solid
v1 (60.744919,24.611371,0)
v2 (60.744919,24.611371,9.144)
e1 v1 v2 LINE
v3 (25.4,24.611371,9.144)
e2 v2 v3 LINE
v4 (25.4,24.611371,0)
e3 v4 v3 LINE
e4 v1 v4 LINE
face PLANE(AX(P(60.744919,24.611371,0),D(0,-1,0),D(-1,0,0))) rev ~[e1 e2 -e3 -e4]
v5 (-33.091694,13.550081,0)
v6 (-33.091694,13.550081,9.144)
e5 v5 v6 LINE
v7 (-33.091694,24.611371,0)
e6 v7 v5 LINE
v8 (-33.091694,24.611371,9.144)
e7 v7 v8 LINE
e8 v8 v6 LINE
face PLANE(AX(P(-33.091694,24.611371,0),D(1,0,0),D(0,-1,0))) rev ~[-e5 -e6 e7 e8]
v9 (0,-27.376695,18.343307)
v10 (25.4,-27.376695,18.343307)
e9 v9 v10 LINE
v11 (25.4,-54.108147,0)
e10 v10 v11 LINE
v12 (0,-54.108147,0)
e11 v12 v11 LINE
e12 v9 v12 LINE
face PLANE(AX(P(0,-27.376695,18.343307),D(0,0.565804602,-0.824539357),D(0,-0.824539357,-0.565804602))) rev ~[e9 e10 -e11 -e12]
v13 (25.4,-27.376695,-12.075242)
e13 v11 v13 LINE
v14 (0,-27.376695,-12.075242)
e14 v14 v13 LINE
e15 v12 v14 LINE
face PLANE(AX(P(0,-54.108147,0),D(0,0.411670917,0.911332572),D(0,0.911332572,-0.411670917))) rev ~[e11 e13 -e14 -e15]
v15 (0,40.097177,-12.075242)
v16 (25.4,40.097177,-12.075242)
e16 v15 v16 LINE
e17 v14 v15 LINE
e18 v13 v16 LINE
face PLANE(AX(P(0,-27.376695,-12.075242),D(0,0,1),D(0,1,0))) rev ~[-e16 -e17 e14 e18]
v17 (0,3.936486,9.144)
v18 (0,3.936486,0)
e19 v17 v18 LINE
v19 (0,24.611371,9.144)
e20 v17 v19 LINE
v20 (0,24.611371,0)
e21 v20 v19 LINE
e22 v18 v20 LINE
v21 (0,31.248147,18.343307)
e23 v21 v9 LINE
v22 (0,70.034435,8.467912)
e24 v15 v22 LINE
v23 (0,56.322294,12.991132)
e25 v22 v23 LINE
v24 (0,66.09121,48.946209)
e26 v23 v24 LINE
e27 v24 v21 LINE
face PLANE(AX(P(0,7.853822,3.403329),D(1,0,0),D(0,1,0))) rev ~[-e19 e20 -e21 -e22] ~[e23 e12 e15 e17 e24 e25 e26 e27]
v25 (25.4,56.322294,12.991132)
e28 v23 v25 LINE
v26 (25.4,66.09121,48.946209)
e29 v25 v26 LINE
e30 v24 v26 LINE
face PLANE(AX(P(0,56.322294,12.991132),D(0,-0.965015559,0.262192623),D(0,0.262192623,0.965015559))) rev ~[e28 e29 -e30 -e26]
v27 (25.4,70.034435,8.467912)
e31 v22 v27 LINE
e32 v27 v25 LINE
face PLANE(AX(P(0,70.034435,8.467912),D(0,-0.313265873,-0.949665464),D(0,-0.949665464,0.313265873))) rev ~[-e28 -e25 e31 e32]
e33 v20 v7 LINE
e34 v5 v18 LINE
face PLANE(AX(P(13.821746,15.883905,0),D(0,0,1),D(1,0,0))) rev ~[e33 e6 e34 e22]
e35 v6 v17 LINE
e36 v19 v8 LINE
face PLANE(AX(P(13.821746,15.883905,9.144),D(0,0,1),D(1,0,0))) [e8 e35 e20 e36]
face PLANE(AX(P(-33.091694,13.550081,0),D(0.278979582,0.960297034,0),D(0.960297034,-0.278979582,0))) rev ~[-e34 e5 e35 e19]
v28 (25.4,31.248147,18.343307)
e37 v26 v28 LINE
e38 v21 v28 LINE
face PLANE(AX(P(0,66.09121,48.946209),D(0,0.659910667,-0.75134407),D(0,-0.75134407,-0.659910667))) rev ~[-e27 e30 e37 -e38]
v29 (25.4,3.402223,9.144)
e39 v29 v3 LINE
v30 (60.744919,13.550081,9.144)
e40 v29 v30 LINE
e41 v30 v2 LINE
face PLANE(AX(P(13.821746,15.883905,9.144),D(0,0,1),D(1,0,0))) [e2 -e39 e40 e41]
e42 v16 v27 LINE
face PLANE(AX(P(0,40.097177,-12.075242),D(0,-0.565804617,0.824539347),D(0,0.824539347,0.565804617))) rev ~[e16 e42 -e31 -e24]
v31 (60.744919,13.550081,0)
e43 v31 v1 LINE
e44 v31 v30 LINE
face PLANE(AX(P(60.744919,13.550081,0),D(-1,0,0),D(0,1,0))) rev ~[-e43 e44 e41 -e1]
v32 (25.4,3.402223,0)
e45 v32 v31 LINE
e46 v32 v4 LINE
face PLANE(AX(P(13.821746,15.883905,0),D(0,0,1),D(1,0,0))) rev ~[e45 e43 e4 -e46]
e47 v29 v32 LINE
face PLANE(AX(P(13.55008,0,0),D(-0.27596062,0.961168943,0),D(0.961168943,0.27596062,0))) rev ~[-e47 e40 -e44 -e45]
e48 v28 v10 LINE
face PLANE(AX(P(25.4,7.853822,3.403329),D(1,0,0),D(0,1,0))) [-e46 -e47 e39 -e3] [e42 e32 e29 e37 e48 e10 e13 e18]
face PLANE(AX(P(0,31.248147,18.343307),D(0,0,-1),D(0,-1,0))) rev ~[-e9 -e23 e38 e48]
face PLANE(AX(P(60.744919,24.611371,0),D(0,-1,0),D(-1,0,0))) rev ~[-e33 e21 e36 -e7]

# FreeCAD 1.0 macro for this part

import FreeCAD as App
import Part
import Sketcher

V = App.Vector
Q = App.Units.Quantity


def add_polygon(sketch, points):
    """Adds a closed chain of lines whose ends are joined by coincident constraints."""
    first, n = sketch.GeometryCount, len(points)
    for a, b in zip(points, points[1:] + points[:1]):
        sketch.addGeometry(Part.LineSegment(App.Vector(*a, 0), App.Vector(*b, 0)), False)
    for i in range(n):
        sketch.addConstraint(Sketcher.Constraint("Coincident", first + i, 2, first + (i + 1) % n, 1))

doc = App.newDocument("Part")
body = doc.addObject("PartDesign::Body", "Body")

# Sketch on XY plane
sketch1 = body.newObject("Sketcher::SketchObject", "Sketch")
sketch1.AttachmentSupport = (doc.getObject("XY_Plane"), [""])
sketch1.MapMode = "FlatFace"
add_polygon(sketch1, [(-33, 14), (14, 0), (61, 14), (61, 25), (-33, 25)])  # lines 0-4
sketch1.addConstraint([
    Sketcher.Constraint("Vertical", 2),
    Sketcher.Constraint("Horizontal", 3),
    Sketcher.Constraint("Vertical", 4),
    Sketcher.Constraint("PointOnObject", 0, 2, -1),
    Sketcher.Constraint("Horizontal", 1, 2, 4, 2),
    Sketcher.Constraint("DistanceY", 2, 1, 2, 2, Q("11.06129 mm")),
    Sketcher.Constraint("DistanceX", 3, 2, 3, 1, Q("93.836613 mm")),
    Sketcher.Constraint("DistanceX", -1, 1, 0, 2, Q("13.55008 mm")),
    Sketcher.Constraint("DistanceX", -1, 1, 1, 2, Q("60.744919 mm")),
    Sketcher.Constraint("DistanceY", -1, 1, 1, 2, Q("13.550081 mm")),
])
pad1 = body.newObject("PartDesign::Pad", "Pad")
pad1.Profile = sketch1
pad1.Length = Q("0.36 in")

# Sketch on YZ plane
sketch2 = body.newObject("Sketcher::SketchObject", "Sketch001")
sketch2.AttachmentSupport = (doc.getObject("YZ_Plane"), [""])
sketch2.MapMode = "FlatFace"
add_polygon(sketch2, [(-27, 18), (-54, 0), (-27, -12), (40, -12), (70, 8), (56, 13), (66, 49), (31, 18)])  # lines 0-7
sketch2.addConstraint([
    Sketcher.Constraint("Horizontal", 2),
    Sketcher.Constraint("Horizontal", 7),
    Sketcher.Constraint("PointOnObject", 0, 2, -1),
    Sketcher.Constraint("Parallel", 0, 3),
    Sketcher.Constraint("Vertical", 1, 2, 7, 2),
    Sketcher.Constraint("DistanceX", 2, 1, 2, 2, Q("67.473872 mm")),
    Sketcher.Constraint("Distance", 0, Q("32.419862 mm")),
    Sketcher.Constraint("Distance", 1, Q("29.332269 mm")),
    Sketcher.Constraint("Distance", 3, Q("36.307859 mm")),
    Sketcher.Constraint("Distance", 6, Q("46.37431 mm")),
    Sketcher.Constraint("DistanceX", 7, 2, 7, 1, Q("58.624842 mm")),
    Sketcher.Constraint("DistanceY", 1, 2, -1, 1, Q("12.075242 mm")),
    Sketcher.Constraint("DistanceX", -1, 1, 5, 2, Q("66.09121 mm")),
    Sketcher.Constraint("DistanceY", -1, 1, 5, 2, Q("48.946209 mm")),
    Sketcher.Constraint("DistanceX", 4, 2, 3, 2, Q("13.712141 mm")),
    Sketcher.Constraint("DistanceY", 3, 2, 4, 2, Q("4.52322 mm")),
])
pad2 = body.newObject("PartDesign::Pad", "Pad001")
pad2.Profile = sketch2
pad2.Length = Q("1 in")

doc.recompute()
